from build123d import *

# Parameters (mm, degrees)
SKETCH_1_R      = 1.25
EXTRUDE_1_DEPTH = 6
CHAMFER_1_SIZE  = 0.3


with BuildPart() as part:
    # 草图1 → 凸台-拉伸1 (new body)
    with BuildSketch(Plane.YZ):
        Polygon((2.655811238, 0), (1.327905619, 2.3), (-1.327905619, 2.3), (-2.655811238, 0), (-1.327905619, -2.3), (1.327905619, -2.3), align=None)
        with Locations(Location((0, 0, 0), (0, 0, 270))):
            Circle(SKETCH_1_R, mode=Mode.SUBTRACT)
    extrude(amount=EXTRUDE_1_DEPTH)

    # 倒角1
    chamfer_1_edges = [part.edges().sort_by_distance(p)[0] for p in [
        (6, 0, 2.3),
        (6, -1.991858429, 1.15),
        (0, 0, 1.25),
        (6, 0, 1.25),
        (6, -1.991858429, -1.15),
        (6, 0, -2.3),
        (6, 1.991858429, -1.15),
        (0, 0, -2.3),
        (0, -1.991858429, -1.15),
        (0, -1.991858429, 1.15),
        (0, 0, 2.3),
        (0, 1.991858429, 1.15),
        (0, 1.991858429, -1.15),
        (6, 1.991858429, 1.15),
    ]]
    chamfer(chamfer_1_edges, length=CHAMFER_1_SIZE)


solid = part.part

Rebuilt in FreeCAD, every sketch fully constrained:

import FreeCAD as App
import Part
import Sketcher
from FreeCAD import Vector
Q = App.Units.Quantity


def edges_at(feature, points):
    """Names of the edges that pass closest to the given points."""
    edges = feature.Shape.Edges
    near = lambda p: min(range(len(edges)), key=lambda i: edges[i].distToShape(Part.Vertex(*p))[0])
    return sorted({f"Edge{near(p) + 1}" for p in points})


def add_polygon(sketch, points):
    """Adds a closed chain of lines whose ends are joined by coincident constraints."""
    first, n = sketch.GeometryCount, len(points)
    for a, b in zip(points, points[1:] + points[:1]):
        sketch.addGeometry(Part.LineSegment(App.Vector(*a, 0), App.Vector(*b, 0)), False)
    for i in range(n):
        sketch.addConstraint(Sketcher.Constraint("Coincident", first + i, 2, first + (i + 1) % n, 1))

doc = App.newDocument("Part")
params = doc.addObject("Spreadsheet::Sheet", "Params")
for row, (alias, value) in enumerate([
    ("sketch1_diameter", "2.5 mm"),
    ("pad1_length", "6 mm"),
    ("chamfer_size", "0.3 mm"),
], start=1):
    params.set(f"A{row}", alias)
    params.set(f"B{row}", "=" + value)
    params.setAlias(f"B{row}", alias)

body = doc.addObject("PartDesign::Body", "Body")

sketch1 = body.newObject("Sketcher::SketchObject", "Sketch")
sketch1.AttachmentSupport = (doc.getObject("YZ_Plane"), [""])
sketch1.MapMode = "FlatFace"
add_polygon(sketch1, [(2.655811, 0), (1.327906, 2.3), (-1.327906, 2.3), (-2.655811, 0), (-1.327906, -2.3), (1.327906, -2.3)])
sketch1.addGeometry(Part.Circle(Vector(0, 0, 0), Vector(0, 0, 1), 1.25), False)
sketch1.addConstraint(Sketcher.Constraint("Horizontal", 1))
sketch1.addConstraint(Sketcher.Constraint("Horizontal", 4))
sketch1.addConstraint(Sketcher.Constraint("Coincident", 6, 3, -1, 1))
sketch1.addConstraint(Sketcher.Constraint("Symmetric", 0, 2, 3, 2, -1, 1))
sketch1.addConstraint(Sketcher.Constraint("Symmetric", 2, 2, 5, 2, -1, 1))
sketch1.addConstraint(Sketcher.Constraint("PointOnObject", 2, 2, -1))
sketch1.addConstraint(Sketcher.Constraint("Parallel", 2, 5))
sketch1.addConstraint(Sketcher.Constraint("Vertical", 1, 2, 3, 2))
sketch1.addConstraint(Sketcher.Constraint("Diameter", 6, Q("2.5 mm")))
sketch1.addConstraint(Sketcher.Constraint("Angle", 0, Q("120 deg")))
sketch1.addConstraint(Sketcher.Constraint("DistanceY", -1, 1, 0, 2, Q("2.3 mm")))
sketch1.addConstraint(Sketcher.Constraint("DistanceX", 1, 2, 1, 1, Q("2.655811 mm")))
sketch1.setExpression("Constraints[14]", "Params.sketch1_diameter")
pad1 = body.newObject("PartDesign::Pad", "Pad")
pad1.Profile = sketch1
pad1.setExpression("Length", "Params.pad1_length")
doc.recompute()

chamfer = body.newObject("PartDesign::Chamfer", "Chamfer")
chamfer.Base = (pad1, edges_at(pad1, [
    (6, 0, 2.3),
    (6, -1.992, 1.15),
    (0, 0, 1.25),
    (6, 0, 1.25),
    (6, -1.992, -1.15),
    (6, 0, -2.3),
    (6, 1.992, -1.15),
    (0, 0, -2.3),
    (0, -1.992, -1.15),
    (0, -1.992, 1.15),
    (0, 0, 2.3),
    (0, 1.992, 1.15),
    (0, 1.992, -1.15),
    (6, 1.992, 1.15),
]))
chamfer.setExpression("Size", "Params.chamfer_size")

doc.recompute()
